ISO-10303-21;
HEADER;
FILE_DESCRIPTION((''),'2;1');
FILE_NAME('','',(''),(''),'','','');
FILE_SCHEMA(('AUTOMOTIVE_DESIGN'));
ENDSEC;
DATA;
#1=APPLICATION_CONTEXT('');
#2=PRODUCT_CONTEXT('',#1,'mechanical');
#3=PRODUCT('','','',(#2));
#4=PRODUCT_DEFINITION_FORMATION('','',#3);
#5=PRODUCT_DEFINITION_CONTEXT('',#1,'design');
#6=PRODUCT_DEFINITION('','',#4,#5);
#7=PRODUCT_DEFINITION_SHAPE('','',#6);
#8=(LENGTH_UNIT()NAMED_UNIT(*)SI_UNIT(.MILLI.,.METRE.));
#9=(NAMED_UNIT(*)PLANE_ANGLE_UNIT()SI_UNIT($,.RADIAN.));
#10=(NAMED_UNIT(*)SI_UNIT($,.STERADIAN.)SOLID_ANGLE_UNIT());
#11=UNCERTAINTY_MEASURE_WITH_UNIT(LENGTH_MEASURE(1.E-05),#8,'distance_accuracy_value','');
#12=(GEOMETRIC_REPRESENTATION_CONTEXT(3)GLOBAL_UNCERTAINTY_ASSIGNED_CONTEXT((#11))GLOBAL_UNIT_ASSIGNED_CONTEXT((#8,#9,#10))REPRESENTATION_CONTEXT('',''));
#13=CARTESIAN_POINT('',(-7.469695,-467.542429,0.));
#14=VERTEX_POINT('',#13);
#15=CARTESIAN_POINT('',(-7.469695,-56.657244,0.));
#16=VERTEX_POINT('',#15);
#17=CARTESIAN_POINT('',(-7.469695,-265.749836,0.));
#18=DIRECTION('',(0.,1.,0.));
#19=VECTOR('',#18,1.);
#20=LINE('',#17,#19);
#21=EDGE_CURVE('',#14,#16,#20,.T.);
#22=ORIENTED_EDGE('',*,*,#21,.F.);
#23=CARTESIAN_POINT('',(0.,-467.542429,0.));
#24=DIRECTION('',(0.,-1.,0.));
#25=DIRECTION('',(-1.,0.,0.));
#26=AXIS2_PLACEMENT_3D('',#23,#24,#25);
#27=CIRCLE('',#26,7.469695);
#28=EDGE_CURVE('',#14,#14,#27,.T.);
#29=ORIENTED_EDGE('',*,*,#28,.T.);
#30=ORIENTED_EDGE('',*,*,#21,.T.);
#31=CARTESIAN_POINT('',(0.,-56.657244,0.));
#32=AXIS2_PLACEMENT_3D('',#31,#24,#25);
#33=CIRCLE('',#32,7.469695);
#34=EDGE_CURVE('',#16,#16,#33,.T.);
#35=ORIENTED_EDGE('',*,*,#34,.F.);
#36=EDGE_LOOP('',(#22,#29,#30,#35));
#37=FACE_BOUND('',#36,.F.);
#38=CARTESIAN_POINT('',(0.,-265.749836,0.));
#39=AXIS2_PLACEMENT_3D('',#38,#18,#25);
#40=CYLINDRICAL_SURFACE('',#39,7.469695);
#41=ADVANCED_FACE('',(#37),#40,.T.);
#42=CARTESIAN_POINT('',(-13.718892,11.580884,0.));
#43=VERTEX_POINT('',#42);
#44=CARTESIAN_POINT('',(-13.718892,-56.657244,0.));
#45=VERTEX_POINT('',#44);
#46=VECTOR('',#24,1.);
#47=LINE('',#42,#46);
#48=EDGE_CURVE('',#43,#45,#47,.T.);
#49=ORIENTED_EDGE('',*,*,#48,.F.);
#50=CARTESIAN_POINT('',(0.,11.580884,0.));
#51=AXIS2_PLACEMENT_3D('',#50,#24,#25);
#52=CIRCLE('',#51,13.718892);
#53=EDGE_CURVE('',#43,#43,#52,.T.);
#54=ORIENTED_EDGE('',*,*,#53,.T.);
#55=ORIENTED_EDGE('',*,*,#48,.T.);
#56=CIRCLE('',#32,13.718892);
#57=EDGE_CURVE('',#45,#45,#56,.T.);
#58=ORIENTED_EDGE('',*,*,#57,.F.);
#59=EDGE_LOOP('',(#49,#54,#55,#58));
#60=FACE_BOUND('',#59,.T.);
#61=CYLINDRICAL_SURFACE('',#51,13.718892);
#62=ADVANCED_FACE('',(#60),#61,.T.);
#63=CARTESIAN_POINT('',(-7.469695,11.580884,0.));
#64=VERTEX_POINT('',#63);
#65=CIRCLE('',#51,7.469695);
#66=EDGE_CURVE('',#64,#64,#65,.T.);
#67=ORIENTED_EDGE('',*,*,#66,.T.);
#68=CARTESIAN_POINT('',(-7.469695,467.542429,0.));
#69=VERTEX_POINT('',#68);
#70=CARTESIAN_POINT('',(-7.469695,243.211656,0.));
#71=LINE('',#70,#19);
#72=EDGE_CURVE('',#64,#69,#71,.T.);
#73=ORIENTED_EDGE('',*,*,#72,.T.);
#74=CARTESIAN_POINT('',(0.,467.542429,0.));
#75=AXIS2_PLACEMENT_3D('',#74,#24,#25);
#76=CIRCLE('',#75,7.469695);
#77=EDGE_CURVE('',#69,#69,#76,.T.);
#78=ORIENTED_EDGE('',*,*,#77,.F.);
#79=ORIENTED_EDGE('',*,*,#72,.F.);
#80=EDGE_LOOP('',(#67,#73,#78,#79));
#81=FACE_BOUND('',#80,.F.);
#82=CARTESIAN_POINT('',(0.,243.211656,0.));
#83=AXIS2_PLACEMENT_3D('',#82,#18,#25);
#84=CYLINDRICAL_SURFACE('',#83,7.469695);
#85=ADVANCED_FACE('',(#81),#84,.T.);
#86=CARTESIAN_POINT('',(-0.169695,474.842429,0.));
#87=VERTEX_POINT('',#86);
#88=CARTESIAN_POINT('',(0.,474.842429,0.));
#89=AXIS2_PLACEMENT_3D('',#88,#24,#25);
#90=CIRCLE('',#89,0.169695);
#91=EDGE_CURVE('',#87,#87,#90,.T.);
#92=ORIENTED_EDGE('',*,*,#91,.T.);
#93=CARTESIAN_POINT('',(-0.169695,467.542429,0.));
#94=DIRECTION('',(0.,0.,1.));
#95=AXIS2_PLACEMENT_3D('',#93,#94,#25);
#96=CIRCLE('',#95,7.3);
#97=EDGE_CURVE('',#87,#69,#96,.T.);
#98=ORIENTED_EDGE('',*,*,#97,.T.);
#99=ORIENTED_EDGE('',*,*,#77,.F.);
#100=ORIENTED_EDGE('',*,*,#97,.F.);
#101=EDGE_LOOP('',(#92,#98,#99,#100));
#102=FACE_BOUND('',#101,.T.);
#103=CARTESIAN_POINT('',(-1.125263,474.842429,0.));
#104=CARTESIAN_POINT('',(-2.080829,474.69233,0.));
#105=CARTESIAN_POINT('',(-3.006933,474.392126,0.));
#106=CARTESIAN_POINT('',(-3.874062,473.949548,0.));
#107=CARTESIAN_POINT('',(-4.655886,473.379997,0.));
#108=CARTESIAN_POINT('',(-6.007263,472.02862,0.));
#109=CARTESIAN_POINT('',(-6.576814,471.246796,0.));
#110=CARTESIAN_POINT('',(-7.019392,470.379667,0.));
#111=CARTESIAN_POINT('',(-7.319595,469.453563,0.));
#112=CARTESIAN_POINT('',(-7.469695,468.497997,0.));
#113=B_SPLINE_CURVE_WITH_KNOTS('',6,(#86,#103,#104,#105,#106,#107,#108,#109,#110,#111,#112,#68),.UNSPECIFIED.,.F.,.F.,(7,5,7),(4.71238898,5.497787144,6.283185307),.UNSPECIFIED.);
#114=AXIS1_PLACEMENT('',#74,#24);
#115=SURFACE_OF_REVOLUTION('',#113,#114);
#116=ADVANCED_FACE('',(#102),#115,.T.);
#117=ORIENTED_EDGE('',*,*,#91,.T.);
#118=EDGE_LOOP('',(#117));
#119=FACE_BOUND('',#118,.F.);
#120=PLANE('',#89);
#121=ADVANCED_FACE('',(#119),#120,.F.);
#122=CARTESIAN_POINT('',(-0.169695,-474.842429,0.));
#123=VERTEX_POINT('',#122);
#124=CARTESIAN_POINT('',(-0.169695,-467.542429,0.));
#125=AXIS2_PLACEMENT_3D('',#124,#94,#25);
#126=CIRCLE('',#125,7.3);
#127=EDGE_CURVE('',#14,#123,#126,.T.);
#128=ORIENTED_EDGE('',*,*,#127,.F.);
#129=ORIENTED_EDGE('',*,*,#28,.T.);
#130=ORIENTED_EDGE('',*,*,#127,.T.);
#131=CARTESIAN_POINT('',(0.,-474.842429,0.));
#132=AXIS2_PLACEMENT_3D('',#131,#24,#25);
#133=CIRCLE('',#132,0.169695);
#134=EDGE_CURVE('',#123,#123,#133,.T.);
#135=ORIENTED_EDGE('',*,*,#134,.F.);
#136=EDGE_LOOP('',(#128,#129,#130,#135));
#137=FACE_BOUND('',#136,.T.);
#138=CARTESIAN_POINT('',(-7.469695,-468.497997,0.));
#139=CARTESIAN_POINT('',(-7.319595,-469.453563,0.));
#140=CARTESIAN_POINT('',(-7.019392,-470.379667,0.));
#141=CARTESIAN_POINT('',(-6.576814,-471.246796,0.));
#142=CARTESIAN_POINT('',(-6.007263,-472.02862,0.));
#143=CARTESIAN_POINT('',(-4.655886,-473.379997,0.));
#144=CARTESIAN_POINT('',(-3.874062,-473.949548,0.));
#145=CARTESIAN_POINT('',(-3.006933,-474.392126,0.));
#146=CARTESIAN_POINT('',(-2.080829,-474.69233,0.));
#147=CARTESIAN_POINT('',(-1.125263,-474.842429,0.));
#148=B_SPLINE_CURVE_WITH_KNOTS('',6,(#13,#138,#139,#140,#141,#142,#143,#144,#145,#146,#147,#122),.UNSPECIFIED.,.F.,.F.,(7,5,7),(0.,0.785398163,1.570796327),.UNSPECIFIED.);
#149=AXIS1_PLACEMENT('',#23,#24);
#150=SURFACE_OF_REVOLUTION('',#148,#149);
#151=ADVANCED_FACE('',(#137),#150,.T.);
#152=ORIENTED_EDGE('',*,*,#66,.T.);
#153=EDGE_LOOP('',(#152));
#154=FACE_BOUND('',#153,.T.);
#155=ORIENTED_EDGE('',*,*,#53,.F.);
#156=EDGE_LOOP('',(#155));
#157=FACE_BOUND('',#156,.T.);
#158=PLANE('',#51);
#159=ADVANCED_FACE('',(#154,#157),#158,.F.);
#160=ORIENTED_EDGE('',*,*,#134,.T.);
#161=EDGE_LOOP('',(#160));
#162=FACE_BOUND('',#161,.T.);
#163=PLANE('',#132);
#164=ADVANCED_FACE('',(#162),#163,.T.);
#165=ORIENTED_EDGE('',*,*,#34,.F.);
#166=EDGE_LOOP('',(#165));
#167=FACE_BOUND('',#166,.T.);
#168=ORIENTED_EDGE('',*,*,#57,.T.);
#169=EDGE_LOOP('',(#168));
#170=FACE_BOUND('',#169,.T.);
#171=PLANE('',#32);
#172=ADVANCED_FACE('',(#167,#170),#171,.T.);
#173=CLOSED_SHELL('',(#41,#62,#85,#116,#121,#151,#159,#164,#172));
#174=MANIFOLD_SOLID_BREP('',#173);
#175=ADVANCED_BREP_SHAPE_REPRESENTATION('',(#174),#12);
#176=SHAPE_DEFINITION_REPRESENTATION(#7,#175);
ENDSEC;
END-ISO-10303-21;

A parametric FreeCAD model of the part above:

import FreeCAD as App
import Part
import Sketcher

V = App.Vector


def edges_at(feature, points):
    """Names of the edges that pass closest to the given points."""
    edges = feature.Shape.Edges
    near = lambda p: min(range(len(edges)), key=lambda i: edges[i].distToShape(Part.Vertex(*p))[0])
    return sorted({f"Edge{near(p) + 1}" for p in points})

doc = App.newDocument("Part")
body = doc.addObject("PartDesign::Body", "Body")

# Sketch on XY plane
sketch1 = body.newObject("Sketcher::SketchObject", "Sketch")
sketch1.AttachmentSupport = (doc.getObject("XY_Plane"), [""])
sketch1.MapMode = "FlatFace"
sketch1.addGeometry([
    Part.LineSegment(V(-13.718892, 11.580884, 0), V(-13.718892, -56.657244, 0)),  # 0
    Part.LineSegment(V(-13.718892, -56.657244, 0), V(-7.469695, -56.657244, 0)),  # 1
    Part.LineSegment(V(-7.469695, -56.657244, 0), V(-7.469695, -474.842429, 0)),  # 2
    Part.LineSegment(V(-7.469695, -474.842429, 0), V(0, -474.842429, 0)),  # 3
    Part.LineSegment(V(0, -474.842429, 0), V(0, 474.842429, 0)),  # 4
    Part.LineSegment(V(0, 474.842429, 0), V(-7.469695, 474.842429, 0)),  # 5
    Part.LineSegment(V(-7.469695, 474.842429, 0), V(-7.469695, 11.580884, 0)),  # 6
    Part.LineSegment(V(-7.469695, 11.580884, 0), V(-13.718892, 11.580884, 0)),  # 7
], False)
sketch1.addConstraint([
    Sketcher.Constraint("Coincident", 0, 2, 1, 1),
    Sketcher.Constraint("Coincident", 1, 2, 2, 1),
    Sketcher.Constraint("Coincident", 2, 2, 3, 1),
    Sketcher.Constraint("Coincident", 3, 2, 4, 1),
    Sketcher.Constraint("Coincident", 4, 2, 5, 1),
    Sketcher.Constraint("Coincident", 5, 2, 6, 1),
    Sketcher.Constraint("Coincident", 6, 2, 7, 1),
    Sketcher.Constraint("Coincident", 7, 2, 0, 1),
    Sketcher.Constraint("Vertical", 0),
    Sketcher.Constraint("Horizontal", 1),
    Sketcher.Constraint("Vertical", 2),
    Sketcher.Constraint("Horizontal", 3),
    Sketcher.Constraint("Vertical", 4),
    Sketcher.Constraint("Horizontal", 5),
    Sketcher.Constraint("Vertical", 6),
    Sketcher.Constraint("Horizontal", 7),
    Sketcher.Constraint("Symmetric", 3, 2, 4, 2, -1, 1),
    Sketcher.Constraint("Vertical", 2, 2, 5, 2),
    Sketcher.Constraint("DistanceY", 4, 1, 4, 2, 949.684858),
    Sketcher.Constraint("DistanceX", 1, 1, 1, 2, 6.249197),
    Sketcher.Constraint("DistanceX", 3, 1, 3, 2, 7.469695),
    Sketcher.Constraint("DistanceY", 0, 2, 0, 1, 68.238127),
    Sketcher.Constraint("DistanceY", 2, 2, 2, 1, 418.185186),
])
revolution = body.newObject("PartDesign::Revolution", "Revolution")
revolution.Profile = sketch1
revolution.ReferenceAxis = (sketch1, ["V_Axis"])
revolution.Angle = 360
doc.recompute()

fillet = body.newObject("PartDesign::Fillet", "Fillet")
fillet.Base = (revolution, edges_at(revolution, [(7.47, 474.842, 0), (7.47, -474.842, 0)]))
fillet.Radius = 7.3

doc.recompute()
